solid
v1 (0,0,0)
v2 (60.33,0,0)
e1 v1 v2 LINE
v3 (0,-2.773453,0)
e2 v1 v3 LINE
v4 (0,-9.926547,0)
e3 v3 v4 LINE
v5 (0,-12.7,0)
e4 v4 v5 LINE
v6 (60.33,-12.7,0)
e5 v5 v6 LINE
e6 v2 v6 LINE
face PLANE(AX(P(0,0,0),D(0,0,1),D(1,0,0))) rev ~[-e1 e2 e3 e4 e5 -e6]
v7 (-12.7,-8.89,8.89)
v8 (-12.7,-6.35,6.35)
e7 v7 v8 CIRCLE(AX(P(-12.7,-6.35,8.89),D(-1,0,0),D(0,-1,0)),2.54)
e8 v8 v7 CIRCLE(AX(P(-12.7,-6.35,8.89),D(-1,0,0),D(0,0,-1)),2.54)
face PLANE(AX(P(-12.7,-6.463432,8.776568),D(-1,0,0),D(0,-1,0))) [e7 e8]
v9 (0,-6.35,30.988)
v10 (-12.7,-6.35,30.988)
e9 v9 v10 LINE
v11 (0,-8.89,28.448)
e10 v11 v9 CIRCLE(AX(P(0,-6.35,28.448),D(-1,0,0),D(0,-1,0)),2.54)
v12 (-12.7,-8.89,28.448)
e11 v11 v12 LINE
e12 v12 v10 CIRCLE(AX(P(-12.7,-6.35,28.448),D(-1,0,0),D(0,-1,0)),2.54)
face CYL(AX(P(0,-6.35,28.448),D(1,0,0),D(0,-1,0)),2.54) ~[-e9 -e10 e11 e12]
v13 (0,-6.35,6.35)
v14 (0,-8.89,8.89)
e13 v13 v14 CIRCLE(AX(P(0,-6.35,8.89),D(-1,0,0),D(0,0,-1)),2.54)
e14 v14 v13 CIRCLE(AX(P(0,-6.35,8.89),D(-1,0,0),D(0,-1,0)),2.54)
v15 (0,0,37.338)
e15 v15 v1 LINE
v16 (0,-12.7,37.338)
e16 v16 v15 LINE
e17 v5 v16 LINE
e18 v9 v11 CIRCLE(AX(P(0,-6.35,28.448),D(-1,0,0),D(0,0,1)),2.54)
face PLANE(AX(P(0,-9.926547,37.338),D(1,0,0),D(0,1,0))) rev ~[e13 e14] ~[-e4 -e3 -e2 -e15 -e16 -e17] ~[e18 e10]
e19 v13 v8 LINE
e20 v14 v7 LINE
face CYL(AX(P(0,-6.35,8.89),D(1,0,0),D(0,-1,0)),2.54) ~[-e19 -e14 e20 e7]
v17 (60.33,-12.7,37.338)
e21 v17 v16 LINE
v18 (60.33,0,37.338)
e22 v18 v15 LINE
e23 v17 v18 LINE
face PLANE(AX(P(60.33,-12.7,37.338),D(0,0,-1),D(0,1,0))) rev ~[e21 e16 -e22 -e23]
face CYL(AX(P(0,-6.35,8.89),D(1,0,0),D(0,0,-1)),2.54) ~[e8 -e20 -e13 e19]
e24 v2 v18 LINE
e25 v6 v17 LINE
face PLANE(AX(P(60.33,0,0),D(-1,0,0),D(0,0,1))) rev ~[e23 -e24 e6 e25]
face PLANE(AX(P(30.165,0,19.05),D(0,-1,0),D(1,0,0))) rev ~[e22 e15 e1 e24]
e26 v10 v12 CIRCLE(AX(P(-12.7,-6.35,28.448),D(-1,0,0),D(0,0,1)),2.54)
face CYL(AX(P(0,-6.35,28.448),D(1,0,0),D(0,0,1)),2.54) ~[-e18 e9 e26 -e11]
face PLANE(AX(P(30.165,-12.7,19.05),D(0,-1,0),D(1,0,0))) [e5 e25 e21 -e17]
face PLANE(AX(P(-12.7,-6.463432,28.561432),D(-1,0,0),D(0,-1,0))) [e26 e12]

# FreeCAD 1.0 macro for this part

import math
import FreeCAD as App
import Part
import Sketcher
from FreeCAD import Vector
Q = App.Units.Quantity

doc = App.newDocument("Part")
body = doc.addObject("PartDesign::Body", "Body")

# Sketch on XZ plane
sketch1 = body.newObject("Sketcher::SketchObject", "Sketch")
sketch1.AttachmentSupport = (doc.getObject("XZ_Plane"), [""])
sketch1.MapMode = "FlatFace"
sketch1.addGeometry(Part.LineSegment(Vector(0, 38, 0), Vector(0, 0, 0)), False)
sketch1.addGeometry(Part.LineSegment(Vector(0, 0, 0), Vector(60, 0, 0)), False)
sketch1.addGeometry(Part.LineSegment(Vector(60, 0, 0), Vector(60, 38, 0)), False)
sketch1.addGeometry(Part.LineSegment(Vector(60, 38, 0), Vector(0, 38, 0)), False)
sketch1.addConstraint(Sketcher.Constraint("Coincident", 0, 2, 1, 1))
sketch1.addConstraint(Sketcher.Constraint("Coincident", 1, 2, 2, 1))
sketch1.addConstraint(Sketcher.Constraint("Coincident", 2, 2, 3, 1))
sketch1.addConstraint(Sketcher.Constraint("Coincident", 3, 2, 0, 1))
sketch1.addConstraint(Sketcher.Constraint("Vertical", 0))
sketch1.addConstraint(Sketcher.Constraint("Horizontal", 1))
sketch1.addConstraint(Sketcher.Constraint("Vertical", 2))
sketch1.addConstraint(Sketcher.Constraint("Horizontal", 3))
sketch1.addConstraint(Sketcher.Constraint("Coincident", 0, 2, -1, 1))
sketch1.addConstraint(Sketcher.Constraint("DistanceY", 0, 2, 0, 1, Q("1.5 in")))
sketch1.addConstraint(Sketcher.Constraint("DistanceX", 1, 1, 1, 2, 60.33))
pad1 = body.newObject("PartDesign::Pad", "Pad")
pad1.Profile = sketch1
pad1.Length = Q("0.5 in")

# Sketch on XY plane
sketch2 = body.newObject("Sketcher::SketchObject", "Sketch001")
sketch2.AttachmentSupport = (doc.getObject("XY_Plane"), [""])
sketch2.MapMode = "FlatFace"
sketch2.AttachmentOffset = App.Placement(Vector(0, 0, 1.5 * 25.4), App.Rotation())
sketch2.addGeometry(Part.LineSegment(Vector(0, -3, 0), Vector(-8, 0, 0)), False)
sketch2.addGeometry(Part.LineSegment(Vector(-8, 0, 0), Vector(-8, -13, 0)), False)
sketch2.addGeometry(Part.LineSegment(Vector(-8, -13, 0), Vector(0, -10, 0)), False)
sketch2.addGeometry(Part.LineSegment(Vector(0, -10, 0), Vector(0, -3, 0)), False)
sketch2.addConstraint(Sketcher.Constraint("Coincident", 0, 2, 1, 1))
sketch2.addConstraint(Sketcher.Constraint("Coincident", 1, 2, 2, 1))
sketch2.addConstraint(Sketcher.Constraint("Coincident", 2, 2, 3, 1))
sketch2.addConstraint(Sketcher.Constraint("Coincident", 3, 2, 0, 1))
sketch2.addConstraint(Sketcher.Constraint("Vertical", 1))
sketch2.addConstraint(Sketcher.Constraint("Vertical", 3))
sketch2.addConstraint(Sketcher.Constraint("PointOnObject", 0, 2, -1))
sketch2.addConstraint(Sketcher.Constraint("PointOnObject", 2, 2, -2))
sketch2.addConstraint(Sketcher.Constraint("Equal", 0, 2))
sketch2.addConstraint(Sketcher.Constraint("DistanceY", 1, 2, 1, 1, Q("0.5 in")))
sketch2.addConstraint(Sketcher.Constraint("Angle", 0, Q("160 deg")))
sketch2.addConstraint(Sketcher.Constraint("DistanceX", 0, 2, -1, 1, Q("0.3 in")))
pad2 = body.newObject("PartDesign::Pad", "Pad001")
pad2.Profile = sketch2
pad2.Length = Q("1.5 in")
pad2.Reversed = True

# Sketch on XY plane
sketch3 = body.newObject("Sketcher::SketchObject", "Sketch002")
sketch3.AttachmentSupport = (doc.getObject("XY_Plane"), [""])
sketch3.MapMode = "FlatFace"
sketch3.addGeometry(Part.LineSegment(Vector(-11, -15, 0), Vector(-11, 0, 0)), False)
sketch3.addGeometry(Part.LineSegment(Vector(-11, 0, 0), Vector(0, 0, 0)), False)
sketch3.addGeometry(Part.LineSegment(Vector(0, 0, 0), Vector(0, -15, 0)), False)
sketch3.addGeometry(Part.LineSegment(Vector(0, -15, 0), Vector(-11, -15, 0)), False)
sketch3.addConstraint(Sketcher.Constraint("Coincident", 0, 2, 1, 1))
sketch3.addConstraint(Sketcher.Constraint("Coincident", 1, 2, 2, 1))
sketch3.addConstraint(Sketcher.Constraint("Coincident", 2, 2, 3, 1))
sketch3.addConstraint(Sketcher.Constraint("Coincident", 3, 2, 0, 1))
sketch3.addConstraint(Sketcher.Constraint("Vertical", 0))
sketch3.addConstraint(Sketcher.Constraint("Horizontal", 1))
sketch3.addConstraint(Sketcher.Constraint("Vertical", 2))
sketch3.addConstraint(Sketcher.Constraint("Horizontal", 3))
sketch3.addConstraint(Sketcher.Constraint("Coincident", 1, 2, -1, 1))
sketch3.addConstraint(Sketcher.Constraint("DistanceY", 0, 1, 0, 2, 14.83578))
sketch3.addConstraint(Sketcher.Constraint("DistanceX", 1, 1, 1, 2, 11.260524))
pocket1 = body.newObject("PartDesign::Pocket", "Pocket")
pocket1.Profile = sketch3
pocket1.Length = Q("0.125 in")
pocket1.Reversed = True

# Sketch on YZ plane
sketch4 = body.newObject("Sketcher::SketchObject", "Sketch003")
sketch4.AttachmentSupport = (doc.getObject("YZ_Plane"), [""])
sketch4.MapMode = "FlatFace"
sketch4.AttachmentOffset = App.Placement(Vector(0, 0, 60.33), App.Rotation())
sketch4.addGeometry(Part.LineSegment(Vector(-12.7, 38.1, 0), Vector(-12.7, 37.85, 0)), False)
sketch4.addGeometry(Part.LineSegment(Vector(-12.7, 37.85, 0), Vector(0, 37.85, 0)), False)
sketch4.addGeometry(Part.LineSegment(Vector(0, 37.85, 0), Vector(0, 38.1, 0)), False)
sketch4.addGeometry(Part.LineSegment(Vector(0, 38.1, 0), Vector(-12.7, 38.1, 0)), False)
sketch4.addConstraint(Sketcher.Constraint("Coincident", 0, 2, 1, 1))
sketch4.addConstraint(Sketcher.Constraint("Coincident", 1, 2, 2, 1))
sketch4.addConstraint(Sketcher.Constraint("Coincident", 2, 2, 3, 1))
sketch4.addConstraint(Sketcher.Constraint("Coincident", 3, 2, 0, 1))
sketch4.addConstraint(Sketcher.Constraint("Vertical", 0))
sketch4.addConstraint(Sketcher.Constraint("Horizontal", 1))
sketch4.addConstraint(Sketcher.Constraint("Vertical", 2))
sketch4.addConstraint(Sketcher.Constraint("Horizontal", 3))
sketch4.addConstraint(Sketcher.Constraint("PointOnObject", 1, 2, -2))
sketch4.addConstraint(Sketcher.Constraint("DistanceX", 1, 1, 1, 2, Q("0.5 in")))
sketch4.addConstraint(Sketcher.Constraint("DistanceY", 0, 2, 0, 1, Q("0.01 in")))
sketch4.addConstraint(Sketcher.Constraint("DistanceY", -1, 1, 2, 2, Q("1.5 in")))
pocket2 = body.newObject("PartDesign::Pocket", "Pocket001")
pocket2.Profile = sketch4
pocket2.Length = Q("4 in")

# Sketch on XY plane
sketch5 = body.newObject("Sketcher::SketchObject", "Sketch004")
sketch5.AttachmentSupport = (doc.getObject("XY_Plane"), [""])
sketch5.MapMode = "FlatFace"
sketch5.AttachmentOffset = App.Placement(Vector(0, 0, 0.125 * 25.4), App.Rotation())
sketch5.addGeometry(Part.LineSegment(Vector(-7.6, -3.4, 0), Vector(-7.6, 0, 0)), False)
sketch5.addGeometry(Part.LineSegment(Vector(-7.6, 0, 0), Vector(0, -2.8, 0)), False)
sketch5.addGeometry(Part.LineSegment(Vector(0, -2.8, 0), Vector(0, -3.4, 0)), False)
sketch5.addGeometry(Part.LineSegment(Vector(0, -3.4, 0), Vector(-7.6, -3.4, 0)), False)
sketch5.addConstraint(Sketcher.Constraint("Coincident", 0, 2, 1, 1))
sketch5.addConstraint(Sketcher.Constraint("Coincident", 1, 2, 2, 1))
sketch5.addConstraint(Sketcher.Constraint("Coincident", 2, 2, 3, 1))
sketch5.addConstraint(Sketcher.Constraint("Coincident", 3, 2, 0, 1))
sketch5.addConstraint(Sketcher.Constraint("Vertical", 0))
sketch5.addConstraint(Sketcher.Constraint("Vertical", 2))
sketch5.addConstraint(Sketcher.Constraint("Horizontal", 3))
sketch5.addConstraint(Sketcher.Constraint("PointOnObject", 0, 2, -1))
sketch5.addConstraint(Sketcher.Constraint("PointOnObject", 1, 2, -2))
sketch5.addConstraint(Sketcher.Constraint("DistanceX", 3, 2, 3, 1, Q("0.3 in")))
sketch5.addConstraint(Sketcher.Constraint("Angle", 1, Q("-20 deg")))
sketch5.addConstraint(Sketcher.Constraint("DistanceY", 0, 1, 0, 2, 3.432057))

# Sketch on YZ plane
sketch6 = body.newObject("Sketcher::SketchObject", "Sketch005")
sketch6.AttachmentSupport = (doc.getObject("YZ_Plane"), [""])
sketch6.MapMode = "FlatFace"
sketch6.addGeometry(Part.LineSegment(Vector(-2.8, 3.2, 0), Vector(-2.8, 0, 0)), False)
sketch6.addGeometry(Part.LineSegment(Vector(-2.8, 0, 0), Vector(-9.9, 0, 0)), False)
sketch6.addGeometry(Part.LineSegment(Vector(-9.9, 0, 0), Vector(-9.9, 3.2, 0)), False)
sketch6.addConstraint(Sketcher.Constraint("Coincident", 0, 2, 1, 1))
sketch6.addConstraint(Sketcher.Constraint("Coincident", 1, 2, 2, 1))
sketch6.addConstraint(Sketcher.Constraint("Vertical", 0))
sketch6.addConstraint(Sketcher.Constraint("Horizontal", 1))
sketch6.addConstraint(Sketcher.Constraint("Vertical", 2))
sketch6.addConstraint(Sketcher.Constraint("PointOnObject", 0, 2, -1))
sketch6.addConstraint(Sketcher.Constraint("Horizontal", 0, 1, 2, 2))
sketch6.addConstraint(Sketcher.Constraint("DistanceY", 0, 2, 0, 1, Q("0.125 in")))
sketch6.addConstraint(Sketcher.Constraint("DistanceX", 1, 2, 1, 1, 7.153094))
sketch6.addConstraint(Sketcher.Constraint("DistanceX", 0, 1, -1, 1, 2.773453))
doc.recompute()

additivepipe = body.newObject("PartDesign::AdditivePipe", "AdditivePipe")
additivepipe.Profile = sketch5
additivepipe.Spine = (sketch6, ["Edge1", "Edge2", "Edge3"])
additivepipe.Transition = "Right corner"

# Sketch on YZ plane
sketch7 = body.newObject("Sketcher::SketchObject", "Sketch006")
sketch7.AttachmentSupport = (doc.getObject("YZ_Plane"), [""])
sketch7.MapMode = "FlatFace"
sketch7.AttachmentOffset = App.Placement(Vector(0, 0, -0.3 * 25.4), App.Rotation())
sketch7.addGeometry(Part.LineSegment(Vector(-3.4, 3.2, 0), Vector(-3.4, 0.7, 0)), False)
sketch7.addGeometry(Part.LineSegment(Vector(-3.4, 0.7, 0), Vector(-9.3, 0.7, 0)), False)
sketch7.addGeometry(Part.LineSegment(Vector(-9.3, 0.7, 0), Vector(-9.3, 3.2, 0)), False)
sketch7.addGeometry(Part.LineSegment(Vector(-9.3, 3.2, 0), Vector(-3.4, 3.2, 0)), False)
sketch7.addConstraint(Sketcher.Constraint("Coincident", 0, 2, 1, 1))
sketch7.addConstraint(Sketcher.Constraint("Coincident", 1, 2, 2, 1))
sketch7.addConstraint(Sketcher.Constraint("Coincident", 2, 2, 3, 1))
sketch7.addConstraint(Sketcher.Constraint("Coincident", 3, 2, 0, 1))
sketch7.addConstraint(Sketcher.Constraint("Vertical", 0))
sketch7.addConstraint(Sketcher.Constraint("Horizontal", 1))
sketch7.addConstraint(Sketcher.Constraint("Vertical", 2))
sketch7.addConstraint(Sketcher.Constraint("Horizontal", 3))
sketch7.addConstraint(Sketcher.Constraint("DistanceY", -1, 1, 2, 2, Q("0.125 in")))
sketch7.addConstraint(Sketcher.Constraint("DistanceX", 1, 2, 1, 1, 5.835886))
sketch7.addConstraint(Sketcher.Constraint("DistanceY", 0, 2, 0, 1, 2.516396))
sketch7.addConstraint(Sketcher.Constraint("DistanceX", 0, 2, -1, 1, 3.432057))
pad3 = body.newObject("PartDesign::Pad", "Pad002")
pad3.Profile = sketch7
pad3.Length = Q("0.3 in")

# Sketch on YZ plane
sketch8 = body.newObject("Sketcher::SketchObject", "Sketch007")
sketch8.AttachmentSupport = (doc.getObject("YZ_Plane"), [""])
sketch8.MapMode = "FlatFace"
sketch8.AttachmentOffset = App.Placement(Vector(0, 0, 60.33), App.Rotation())
sketch8.addGeometry(Part.LineSegment(Vector(-12.7, 37.8, 0), Vector(-12.7, 37.3, 0)), False)
sketch8.addGeometry(Part.LineSegment(Vector(-12.7, 37.3, 0), Vector(0, 37.3, 0)), False)
sketch8.addGeometry(Part.LineSegment(Vector(0, 37.3, 0), Vector(0, 37.8, 0)), False)
sketch8.addGeometry(Part.LineSegment(Vector(0, 37.8, 0), Vector(-12.7, 37.8, 0)), False)
sketch8.addConstraint(Sketcher.Constraint("Coincident", 0, 2, 1, 1))
sketch8.addConstraint(Sketcher.Constraint("Coincident", 1, 2, 2, 1))
sketch8.addConstraint(Sketcher.Constraint("Coincident", 2, 2, 3, 1))
sketch8.addConstraint(Sketcher.Constraint("Coincident", 3, 2, 0, 1))
sketch8.addConstraint(Sketcher.Constraint("Vertical", 0))
sketch8.addConstraint(Sketcher.Constraint("Horizontal", 1))
sketch8.addConstraint(Sketcher.Constraint("Vertical", 2))
sketch8.addConstraint(Sketcher.Constraint("Horizontal", 3))
sketch8.addConstraint(Sketcher.Constraint("PointOnObject", 1, 2, -2))
sketch8.addConstraint(Sketcher.Constraint("DistanceX", 1, 1, 1, 2, Q("0.5 in")))
sketch8.addConstraint(Sketcher.Constraint("DistanceY", 0, 2, 0, 1, Q("0.02 in")))
sketch8.addConstraint(Sketcher.Constraint("DistanceY", -1, 1, 0, 2, Q("1.47 in")))
pocket3 = body.newObject("PartDesign::Pocket", "Pocket002")
pocket3.Profile = sketch8
pocket3.Length = Q("4 in")

# Sketch on XY plane
sketch9 = body.newObject("Sketcher::SketchObject", "Sketch008")
sketch9.AttachmentSupport = (doc.getObject("XY_Plane"), [""])
sketch9.MapMode = "FlatFace"
sketch9.AttachmentOffset = App.Placement(Vector(0, 0, 1.47 * 25.4), App.Rotation())
sketch9.addGeometry(Part.LineSegment(Vector(0, -3, 0), Vector(-8, 0, 0)), False)
sketch9.addGeometry(Part.LineSegment(Vector(-8, 0, 0), Vector(-8, -13, 0)), False)
sketch9.addGeometry(Part.LineSegment(Vector(-8, -13, 0), Vector(0, -10, 0)), False)
sketch9.addGeometry(Part.LineSegment(Vector(0, -10, 0), Vector(0, -3, 0)), False)
sketch9.addConstraint(Sketcher.Constraint("Coincident", 0, 2, 1, 1))
sketch9.addConstraint(Sketcher.Constraint("Coincident", 1, 2, 2, 1))
sketch9.addConstraint(Sketcher.Constraint("Coincident", 2, 2, 3, 1))
sketch9.addConstraint(Sketcher.Constraint("Coincident", 3, 2, 0, 1))
sketch9.addConstraint(Sketcher.Constraint("Vertical", 1))
sketch9.addConstraint(Sketcher.Constraint("Vertical", 3))
sketch9.addConstraint(Sketcher.Constraint("PointOnObject", 0, 2, -1))
sketch9.addConstraint(Sketcher.Constraint("PointOnObject", 2, 2, -2))
sketch9.addConstraint(Sketcher.Constraint("Equal", 0, 2))
sketch9.addConstraint(Sketcher.Constraint("DistanceY", 1, 2, 1, 1, Q("0.5 in")))
sketch9.addConstraint(Sketcher.Constraint("Angle", 0, Q("160 deg")))
sketch9.addConstraint(Sketcher.Constraint("DistanceX", 0, 2, -1, 1, Q("0.3 in")))
pocket4 = body.newObject("PartDesign::Pocket", "Pocket003")
pocket4.Profile = sketch9
pocket4.Length = Q("0.7 in")

# Sketch on XY plane
sketch10 = body.newObject("Sketcher::SketchObject", "Sketch009")
sketch10.AttachmentSupport = (doc.getObject("XY_Plane"), [""])
sketch10.MapMode = "FlatFace"
sketch10.AttachmentOffset = App.Placement(Vector(0, 0, 0.77 * 25.4), App.Rotation())
sketch10.addGeometry(Part.LineSegment(Vector(-8, 0, 0), Vector(-8, -13, 0)), False)
sketch10.addGeometry(Part.LineSegment(Vector(-8, -13, 0), Vector(0, -10, 0)), False)
sketch10.addGeometry(Part.LineSegment(Vector(0, -10, 0), Vector(0, -3, 0)), False)
sketch10.addGeometry(Part.LineSegment(Vector(0, -3, 0), Vector(-8, 0, 0)), False)
sketch10.addConstraint(Sketcher.Constraint("Coincident", 0, 2, 1, 1))
sketch10.addConstraint(Sketcher.Constraint("Coincident", 1, 2, 2, 1))
sketch10.addConstraint(Sketcher.Constraint("Coincident", 2, 2, 3, 1))
sketch10.addConstraint(Sketcher.Constraint("Coincident", 3, 2, 0, 1))
sketch10.addConstraint(Sketcher.Constraint("Vertical", 0))
sketch10.addConstraint(Sketcher.Constraint("Vertical", 2))
sketch10.addConstraint(Sketcher.Constraint("PointOnObject", 1, 2, -2))
sketch10.addConstraint(Sketcher.Constraint("PointOnObject", 3, 2, -1))
sketch10.addConstraint(Sketcher.Constraint("Equal", 1, 3))
sketch10.addConstraint(Sketcher.Constraint("DistanceY", 0, 2, 0, 1, Q("0.5 in")))
sketch10.addConstraint(Sketcher.Constraint("Angle", 1, Q("20 deg")))
sketch10.addConstraint(Sketcher.Constraint("DistanceX", 0, 2, -1, 1, Q("0.3 in")))
pocket5 = body.newObject("PartDesign::Pocket", "Pocket004")
pocket5.Profile = sketch10
pocket5.Length = Q("1 in")

# Sketch on YZ plane
sketch11 = body.newObject("Sketcher::SketchObject", "Sketch010")
sketch11.AttachmentSupport = (doc.getObject("YZ_Plane"), [""])
sketch11.MapMode = "FlatFace"
sketch11.addGeometry(Part.ArcOfCircle(Part.Circle(Vector(-6.3, 8.9, 0), Vector(0, 0, 1), 2.5), math.radians(-90), math.radians(180)), False)
sketch11.addGeometry(Part.ArcOfCircle(Part.Circle(Vector(-6.3, 8.9, 0), Vector(0, 0, 1), 2.5), math.radians(180), math.radians(270)), False)
sketch11.addGeometry(Part.ArcOfCircle(Part.Circle(Vector(-6.3, 28.4, 0), Vector(0, 0, 1), 2.5), math.radians(90), math.radians(180)), False)
sketch11.addGeometry(Part.ArcOfCircle(Part.Circle(Vector(-6.3, 28.4, 0), Vector(0, 0, 1), 2.5), math.radians(180), math.radians(450)), False)
sketch11.addConstraint(Sketcher.Constraint("Tangent", 0, 1, 1, 2))
sketch11.addConstraint(Sketcher.Constraint("Coincident", 1, 1, 0, 2))
sketch11.addConstraint(Sketcher.Constraint("Tangent", 2, 1, 3, 2))
sketch11.addConstraint(Sketcher.Constraint("Coincident", 3, 1, 2, 2))
sketch11.addConstraint(Sketcher.Constraint("Equal", 1, 2))
sketch11.addConstraint(Sketcher.Constraint("Horizontal", 0, 3, 1, 1))
sketch11.addConstraint(Sketcher.Constraint("Horizontal", 2, 3, 3, 1))
sketch11.addConstraint(Sketcher.Constraint("Vertical", 1, 3, 2, 3))
sketch11.addConstraint(Sketcher.Constraint("Vertical", 3, 3, 0, 1))
sketch11.addConstraint(Sketcher.Constraint("Vertical", 0, 1, 2, 1))
sketch11.addConstraint(Sketcher.Constraint("Radius", 0, Q("0.1 in")))
sketch11.addConstraint(Sketcher.Constraint("DistanceX", 0, 3, -1, 1, Q("0.25 in")))
sketch11.addConstraint(Sketcher.Constraint("DistanceY", -1, 1, 0, 3, Q("0.35 in")))
sketch11.addConstraint(Sketcher.Constraint("DistanceY", -1, 1, 2, 3, Q("1.12 in")))
pad4 = body.newObject("PartDesign::Pad", "Pad003")
pad4.Profile = sketch11
pad4.Length = Q("0.5 in")
pad4.Reversed = True

doc.recompute()
